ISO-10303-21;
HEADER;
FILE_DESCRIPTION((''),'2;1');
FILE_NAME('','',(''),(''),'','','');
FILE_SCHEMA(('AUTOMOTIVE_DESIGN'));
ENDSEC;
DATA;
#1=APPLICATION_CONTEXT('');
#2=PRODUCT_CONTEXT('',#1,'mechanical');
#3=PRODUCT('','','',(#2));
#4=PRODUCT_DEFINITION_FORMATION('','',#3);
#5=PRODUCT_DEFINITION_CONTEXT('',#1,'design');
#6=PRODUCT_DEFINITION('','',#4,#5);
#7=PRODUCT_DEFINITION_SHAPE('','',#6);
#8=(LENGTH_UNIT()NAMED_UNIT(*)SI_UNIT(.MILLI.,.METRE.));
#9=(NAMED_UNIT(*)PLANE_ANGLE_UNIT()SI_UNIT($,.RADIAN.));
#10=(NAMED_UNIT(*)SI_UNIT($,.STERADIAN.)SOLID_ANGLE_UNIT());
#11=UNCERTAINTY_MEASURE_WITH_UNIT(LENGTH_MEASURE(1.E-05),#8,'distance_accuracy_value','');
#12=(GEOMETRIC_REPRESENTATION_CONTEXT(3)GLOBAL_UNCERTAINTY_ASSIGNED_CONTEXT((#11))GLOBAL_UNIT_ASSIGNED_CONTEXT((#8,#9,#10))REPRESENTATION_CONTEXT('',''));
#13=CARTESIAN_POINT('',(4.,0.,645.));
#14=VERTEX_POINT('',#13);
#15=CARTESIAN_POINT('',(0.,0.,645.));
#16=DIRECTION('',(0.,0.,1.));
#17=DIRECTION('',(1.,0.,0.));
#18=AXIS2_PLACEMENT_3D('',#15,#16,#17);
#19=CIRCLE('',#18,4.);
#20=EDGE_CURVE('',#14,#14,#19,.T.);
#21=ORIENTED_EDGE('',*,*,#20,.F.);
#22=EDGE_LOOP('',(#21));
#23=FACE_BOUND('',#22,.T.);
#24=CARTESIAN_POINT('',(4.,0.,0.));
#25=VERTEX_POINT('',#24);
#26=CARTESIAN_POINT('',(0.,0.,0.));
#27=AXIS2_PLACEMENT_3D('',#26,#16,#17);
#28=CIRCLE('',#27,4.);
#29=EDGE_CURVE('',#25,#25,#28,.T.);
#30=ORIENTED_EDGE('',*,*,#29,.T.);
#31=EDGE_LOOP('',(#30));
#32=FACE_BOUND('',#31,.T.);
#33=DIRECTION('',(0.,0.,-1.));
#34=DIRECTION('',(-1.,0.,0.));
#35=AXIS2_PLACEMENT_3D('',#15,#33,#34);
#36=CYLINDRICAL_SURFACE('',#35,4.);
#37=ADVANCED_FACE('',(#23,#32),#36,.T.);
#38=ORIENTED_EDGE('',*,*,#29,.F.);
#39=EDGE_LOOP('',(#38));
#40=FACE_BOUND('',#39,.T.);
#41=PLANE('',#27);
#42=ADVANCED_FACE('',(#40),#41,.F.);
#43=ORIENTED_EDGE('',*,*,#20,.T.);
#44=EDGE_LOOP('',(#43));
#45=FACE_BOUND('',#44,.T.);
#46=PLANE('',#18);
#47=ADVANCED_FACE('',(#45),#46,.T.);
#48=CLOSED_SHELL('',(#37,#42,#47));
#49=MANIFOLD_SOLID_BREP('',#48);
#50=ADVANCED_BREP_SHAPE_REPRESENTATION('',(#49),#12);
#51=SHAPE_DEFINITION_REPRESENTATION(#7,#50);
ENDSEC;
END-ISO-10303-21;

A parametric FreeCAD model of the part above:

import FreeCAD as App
import Part
import Sketcher

V = App.Vector

doc = App.newDocument("Part")
body = doc.addObject("PartDesign::Body", "Body")

sketch1 = doc.addObject("Sketcher::SketchObject", "Sketch")
body.addObject(sketch1)
sketch1.AttachmentSupport = (doc.XY_Plane, [""])
sketch1.MapMode = "FlatFace"
sketch1.addGeometry(Part.Circle(V(0, 0, 0), V(0, 0, 1), 4), False)
sketch1.addConstraint(Sketcher.Constraint("Coincident", 0, 3, -1, 1))
sketch1.addConstraint(Sketcher.Constraint("Diameter", 0, 8.0))
pad1 = doc.addObject("PartDesign::Pad", "Pad")
body.addObject(pad1)
pad1.Profile = sketch1
pad1.Length = 645

doc.recompute()
